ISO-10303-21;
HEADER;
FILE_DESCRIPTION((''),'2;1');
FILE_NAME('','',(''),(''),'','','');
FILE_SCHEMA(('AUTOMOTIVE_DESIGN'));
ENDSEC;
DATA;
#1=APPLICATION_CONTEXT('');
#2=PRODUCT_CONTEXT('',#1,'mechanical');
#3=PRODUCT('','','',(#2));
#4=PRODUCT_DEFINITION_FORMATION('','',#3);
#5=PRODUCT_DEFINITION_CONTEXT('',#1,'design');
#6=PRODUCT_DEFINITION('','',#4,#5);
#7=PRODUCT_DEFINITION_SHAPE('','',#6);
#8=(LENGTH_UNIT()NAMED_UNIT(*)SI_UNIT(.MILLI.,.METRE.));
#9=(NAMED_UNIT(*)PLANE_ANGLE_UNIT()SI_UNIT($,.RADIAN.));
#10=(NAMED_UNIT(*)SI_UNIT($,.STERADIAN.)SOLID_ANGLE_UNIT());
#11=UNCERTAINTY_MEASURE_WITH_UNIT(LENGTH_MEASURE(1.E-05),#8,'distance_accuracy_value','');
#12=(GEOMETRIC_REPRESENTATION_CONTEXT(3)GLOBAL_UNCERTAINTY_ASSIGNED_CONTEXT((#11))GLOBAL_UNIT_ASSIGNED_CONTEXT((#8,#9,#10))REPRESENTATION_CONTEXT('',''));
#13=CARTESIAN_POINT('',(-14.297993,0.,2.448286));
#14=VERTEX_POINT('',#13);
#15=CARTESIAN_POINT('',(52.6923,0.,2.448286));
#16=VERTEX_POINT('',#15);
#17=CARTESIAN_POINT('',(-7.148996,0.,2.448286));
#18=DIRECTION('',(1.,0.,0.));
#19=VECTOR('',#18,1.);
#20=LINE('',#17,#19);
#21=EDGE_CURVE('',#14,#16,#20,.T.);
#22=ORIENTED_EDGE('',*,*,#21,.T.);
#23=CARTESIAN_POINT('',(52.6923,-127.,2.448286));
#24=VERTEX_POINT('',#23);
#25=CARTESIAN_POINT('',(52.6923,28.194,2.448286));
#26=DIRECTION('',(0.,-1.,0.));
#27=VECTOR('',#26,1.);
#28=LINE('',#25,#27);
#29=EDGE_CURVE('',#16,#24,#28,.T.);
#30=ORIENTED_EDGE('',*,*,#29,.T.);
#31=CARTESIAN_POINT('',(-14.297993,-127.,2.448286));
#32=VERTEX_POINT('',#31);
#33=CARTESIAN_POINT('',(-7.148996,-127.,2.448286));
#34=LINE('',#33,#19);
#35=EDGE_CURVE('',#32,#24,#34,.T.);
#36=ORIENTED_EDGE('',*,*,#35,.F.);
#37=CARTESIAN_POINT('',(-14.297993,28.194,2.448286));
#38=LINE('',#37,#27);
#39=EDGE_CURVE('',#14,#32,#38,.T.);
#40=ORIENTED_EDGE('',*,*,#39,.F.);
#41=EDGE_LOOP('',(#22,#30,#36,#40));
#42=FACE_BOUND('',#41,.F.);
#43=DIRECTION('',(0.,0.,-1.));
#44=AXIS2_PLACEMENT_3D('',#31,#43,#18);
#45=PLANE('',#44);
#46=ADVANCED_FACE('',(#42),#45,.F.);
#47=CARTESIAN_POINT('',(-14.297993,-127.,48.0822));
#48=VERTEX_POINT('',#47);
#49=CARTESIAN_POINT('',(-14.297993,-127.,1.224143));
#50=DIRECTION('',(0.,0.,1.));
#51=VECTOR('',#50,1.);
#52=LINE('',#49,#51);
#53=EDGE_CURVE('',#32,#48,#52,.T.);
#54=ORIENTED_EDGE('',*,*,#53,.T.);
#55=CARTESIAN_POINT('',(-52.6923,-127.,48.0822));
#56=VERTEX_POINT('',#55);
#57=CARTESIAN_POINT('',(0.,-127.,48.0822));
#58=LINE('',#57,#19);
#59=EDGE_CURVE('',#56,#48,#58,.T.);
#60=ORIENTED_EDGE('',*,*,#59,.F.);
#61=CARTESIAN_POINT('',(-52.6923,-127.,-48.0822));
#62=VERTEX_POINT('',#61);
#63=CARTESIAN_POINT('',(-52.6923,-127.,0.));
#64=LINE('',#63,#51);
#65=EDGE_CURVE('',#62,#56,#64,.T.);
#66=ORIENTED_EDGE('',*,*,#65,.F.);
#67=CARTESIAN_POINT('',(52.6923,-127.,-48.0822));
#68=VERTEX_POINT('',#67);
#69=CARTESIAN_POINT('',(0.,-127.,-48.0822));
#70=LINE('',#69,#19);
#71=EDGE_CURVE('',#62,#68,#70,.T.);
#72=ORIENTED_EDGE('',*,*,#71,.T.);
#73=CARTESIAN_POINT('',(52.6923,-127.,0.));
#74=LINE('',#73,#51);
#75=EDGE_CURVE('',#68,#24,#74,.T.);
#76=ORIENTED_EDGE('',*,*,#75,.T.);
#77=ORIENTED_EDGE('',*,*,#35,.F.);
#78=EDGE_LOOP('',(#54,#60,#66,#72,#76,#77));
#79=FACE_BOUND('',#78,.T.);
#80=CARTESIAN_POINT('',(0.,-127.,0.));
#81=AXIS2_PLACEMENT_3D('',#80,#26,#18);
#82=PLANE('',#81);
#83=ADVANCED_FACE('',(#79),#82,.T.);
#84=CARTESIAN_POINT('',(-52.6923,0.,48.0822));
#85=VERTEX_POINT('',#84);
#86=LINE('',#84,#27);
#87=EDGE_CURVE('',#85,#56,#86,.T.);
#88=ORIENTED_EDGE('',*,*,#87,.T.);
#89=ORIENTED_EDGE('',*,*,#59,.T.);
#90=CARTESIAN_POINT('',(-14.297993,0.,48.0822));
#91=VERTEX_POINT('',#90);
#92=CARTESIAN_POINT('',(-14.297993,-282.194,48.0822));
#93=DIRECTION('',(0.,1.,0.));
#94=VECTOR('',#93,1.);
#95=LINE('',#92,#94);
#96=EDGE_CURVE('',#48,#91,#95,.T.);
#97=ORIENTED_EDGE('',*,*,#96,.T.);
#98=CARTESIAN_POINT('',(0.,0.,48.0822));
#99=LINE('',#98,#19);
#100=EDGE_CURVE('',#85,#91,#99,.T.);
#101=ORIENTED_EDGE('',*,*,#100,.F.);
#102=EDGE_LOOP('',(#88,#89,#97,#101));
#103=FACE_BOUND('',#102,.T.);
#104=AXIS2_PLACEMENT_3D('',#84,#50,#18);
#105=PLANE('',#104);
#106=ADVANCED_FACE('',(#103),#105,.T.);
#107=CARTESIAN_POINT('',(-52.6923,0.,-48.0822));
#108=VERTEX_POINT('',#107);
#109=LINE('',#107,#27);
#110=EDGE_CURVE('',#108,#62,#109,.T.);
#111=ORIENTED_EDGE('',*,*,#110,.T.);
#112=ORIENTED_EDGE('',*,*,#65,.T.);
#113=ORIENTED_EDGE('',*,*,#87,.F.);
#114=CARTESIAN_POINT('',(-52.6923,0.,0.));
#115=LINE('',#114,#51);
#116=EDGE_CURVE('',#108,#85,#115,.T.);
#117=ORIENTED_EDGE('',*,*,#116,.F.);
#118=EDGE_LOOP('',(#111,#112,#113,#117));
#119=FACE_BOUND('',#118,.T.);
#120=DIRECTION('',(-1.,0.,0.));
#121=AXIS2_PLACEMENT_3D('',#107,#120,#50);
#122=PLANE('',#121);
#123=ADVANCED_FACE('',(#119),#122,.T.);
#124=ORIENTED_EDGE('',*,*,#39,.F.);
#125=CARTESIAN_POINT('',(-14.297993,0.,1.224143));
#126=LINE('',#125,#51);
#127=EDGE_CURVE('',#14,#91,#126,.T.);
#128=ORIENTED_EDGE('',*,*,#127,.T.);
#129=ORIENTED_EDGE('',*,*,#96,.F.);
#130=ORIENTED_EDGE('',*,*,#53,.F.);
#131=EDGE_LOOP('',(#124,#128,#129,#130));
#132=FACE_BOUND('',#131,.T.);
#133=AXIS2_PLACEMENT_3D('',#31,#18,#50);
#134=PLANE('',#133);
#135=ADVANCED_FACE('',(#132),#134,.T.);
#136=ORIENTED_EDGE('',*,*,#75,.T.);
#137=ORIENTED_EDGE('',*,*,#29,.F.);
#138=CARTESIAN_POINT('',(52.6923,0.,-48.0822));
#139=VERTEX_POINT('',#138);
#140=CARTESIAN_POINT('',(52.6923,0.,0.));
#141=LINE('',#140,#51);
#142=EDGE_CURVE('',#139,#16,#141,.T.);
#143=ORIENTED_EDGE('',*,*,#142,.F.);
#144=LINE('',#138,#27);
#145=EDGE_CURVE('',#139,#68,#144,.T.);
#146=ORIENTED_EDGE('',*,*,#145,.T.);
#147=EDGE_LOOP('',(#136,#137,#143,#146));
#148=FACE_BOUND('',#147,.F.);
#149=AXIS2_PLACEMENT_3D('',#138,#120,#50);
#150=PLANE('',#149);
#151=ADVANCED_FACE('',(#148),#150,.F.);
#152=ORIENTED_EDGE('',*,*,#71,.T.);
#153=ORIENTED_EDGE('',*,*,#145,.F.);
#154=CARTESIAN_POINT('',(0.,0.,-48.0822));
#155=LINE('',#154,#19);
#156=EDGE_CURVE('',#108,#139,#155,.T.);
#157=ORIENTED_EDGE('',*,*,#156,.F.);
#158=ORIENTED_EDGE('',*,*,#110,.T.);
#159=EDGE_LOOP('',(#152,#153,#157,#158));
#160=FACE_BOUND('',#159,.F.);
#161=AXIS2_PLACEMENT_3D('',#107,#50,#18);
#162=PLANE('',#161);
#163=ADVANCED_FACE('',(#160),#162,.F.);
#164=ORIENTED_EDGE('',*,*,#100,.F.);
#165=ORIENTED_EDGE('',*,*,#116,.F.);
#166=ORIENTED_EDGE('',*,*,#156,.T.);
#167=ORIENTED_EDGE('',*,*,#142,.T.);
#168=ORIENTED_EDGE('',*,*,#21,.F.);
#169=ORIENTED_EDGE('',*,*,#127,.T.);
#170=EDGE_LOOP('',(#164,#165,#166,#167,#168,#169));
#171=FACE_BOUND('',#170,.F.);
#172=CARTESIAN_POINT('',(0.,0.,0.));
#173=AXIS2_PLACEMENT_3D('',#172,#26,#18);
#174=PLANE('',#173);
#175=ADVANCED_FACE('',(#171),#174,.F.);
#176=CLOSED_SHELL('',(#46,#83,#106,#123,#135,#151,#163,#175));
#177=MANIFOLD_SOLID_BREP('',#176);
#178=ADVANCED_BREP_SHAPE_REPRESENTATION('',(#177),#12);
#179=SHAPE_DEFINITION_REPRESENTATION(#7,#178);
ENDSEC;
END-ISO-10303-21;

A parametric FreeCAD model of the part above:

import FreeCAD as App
import Part
import Sketcher
Q = App.Units.Quantity


def add_polygon(sketch, points):
    """Adds a closed chain of lines whose ends are joined by coincident constraints."""
    first, n = sketch.GeometryCount, len(points)
    for a, b in zip(points, points[1:] + points[:1]):
        sketch.addGeometry(Part.LineSegment(App.Vector(*a, 0), App.Vector(*b, 0)), False)
    for i in range(n):
        sketch.addConstraint(Sketcher.Constraint("Coincident", first + i, 2, first + (i + 1) % n, 1))

doc = App.newDocument("Part")
body = doc.addObject("PartDesign::Body", "Body")

# Sketch on XZ plane
sketch1 = body.newObject("Sketcher::SketchObject", "Sketch")
sketch1.AttachmentSupport = (doc.getObject("XZ_Plane"), [""])
sketch1.MapMode = "FlatFace"
add_polygon(sketch1, [(-52.6923, 48.0822), (-52.6923, -48.0822), (52.6923, -48.0822), (52.6923, 48.0822)])  # lines 0-3
sketch1.addConstraint(Sketcher.Constraint("Vertical", 0))
sketch1.addConstraint(Sketcher.Constraint("Horizontal", 1))
sketch1.addConstraint(Sketcher.Constraint("Vertical", 2))
sketch1.addConstraint(Sketcher.Constraint("Horizontal", 3))
sketch1.addConstraint(Sketcher.Constraint("Symmetric", 0, 2, 2, 2, -1, 1))
sketch1.addConstraint(Sketcher.Constraint("DistanceX", 1, 1, 1, 2, Q("4.149 in")))
sketch1.addConstraint(Sketcher.Constraint("DistanceY", 0, 2, 0, 1, Q("3.786 in")))
pad1 = body.newObject("PartDesign::Pad", "Pad")
pad1.Profile = sketch1
pad1.Length = Q("5 in")

# Sketch on XZ plane
sketch2 = body.newObject("Sketcher::SketchObject", "Sketch001")
sketch2.AttachmentSupport = (doc.getObject("XZ_Plane"), [""])
sketch2.MapMode = "FlatFace"
sketch2.AttachmentOffset = App.Placement(App.Vector(0, 0, 5 * 25.4), App.Rotation())
add_polygon(sketch2, [(-14.297993, 48.0822), (-14.297993, 2.448286), (52.6923, 2.448286), (52.6923, 48.0822)])  # lines 0-3
sketch2.addConstraint(Sketcher.Constraint("Vertical", 0))
sketch2.addConstraint(Sketcher.Constraint("Horizontal", 1))
sketch2.addConstraint(Sketcher.Constraint("Vertical", 2))
sketch2.addConstraint(Sketcher.Constraint("Horizontal", 3))
sketch2.addConstraint(Sketcher.Constraint("DistanceY", -1, 1, 2, 2, Q("1.893 in")))
sketch2.addConstraint(Sketcher.Constraint("DistanceX", -1, 1, 1, 2, Q("2.0745 in")))
sketch2.addConstraint(Sketcher.Constraint("DistanceX", 1, 1, 1, 2, 66.990293))
sketch2.addConstraint(Sketcher.Constraint("DistanceY", 0, 2, 0, 1, 45.633914))
pocket1 = body.newObject("PartDesign::Pocket", "Pocket")
pocket1.Profile = sketch2
pocket1.Length = Q("12.22 in")
pocket1.Midplane = True

doc.recompute()
